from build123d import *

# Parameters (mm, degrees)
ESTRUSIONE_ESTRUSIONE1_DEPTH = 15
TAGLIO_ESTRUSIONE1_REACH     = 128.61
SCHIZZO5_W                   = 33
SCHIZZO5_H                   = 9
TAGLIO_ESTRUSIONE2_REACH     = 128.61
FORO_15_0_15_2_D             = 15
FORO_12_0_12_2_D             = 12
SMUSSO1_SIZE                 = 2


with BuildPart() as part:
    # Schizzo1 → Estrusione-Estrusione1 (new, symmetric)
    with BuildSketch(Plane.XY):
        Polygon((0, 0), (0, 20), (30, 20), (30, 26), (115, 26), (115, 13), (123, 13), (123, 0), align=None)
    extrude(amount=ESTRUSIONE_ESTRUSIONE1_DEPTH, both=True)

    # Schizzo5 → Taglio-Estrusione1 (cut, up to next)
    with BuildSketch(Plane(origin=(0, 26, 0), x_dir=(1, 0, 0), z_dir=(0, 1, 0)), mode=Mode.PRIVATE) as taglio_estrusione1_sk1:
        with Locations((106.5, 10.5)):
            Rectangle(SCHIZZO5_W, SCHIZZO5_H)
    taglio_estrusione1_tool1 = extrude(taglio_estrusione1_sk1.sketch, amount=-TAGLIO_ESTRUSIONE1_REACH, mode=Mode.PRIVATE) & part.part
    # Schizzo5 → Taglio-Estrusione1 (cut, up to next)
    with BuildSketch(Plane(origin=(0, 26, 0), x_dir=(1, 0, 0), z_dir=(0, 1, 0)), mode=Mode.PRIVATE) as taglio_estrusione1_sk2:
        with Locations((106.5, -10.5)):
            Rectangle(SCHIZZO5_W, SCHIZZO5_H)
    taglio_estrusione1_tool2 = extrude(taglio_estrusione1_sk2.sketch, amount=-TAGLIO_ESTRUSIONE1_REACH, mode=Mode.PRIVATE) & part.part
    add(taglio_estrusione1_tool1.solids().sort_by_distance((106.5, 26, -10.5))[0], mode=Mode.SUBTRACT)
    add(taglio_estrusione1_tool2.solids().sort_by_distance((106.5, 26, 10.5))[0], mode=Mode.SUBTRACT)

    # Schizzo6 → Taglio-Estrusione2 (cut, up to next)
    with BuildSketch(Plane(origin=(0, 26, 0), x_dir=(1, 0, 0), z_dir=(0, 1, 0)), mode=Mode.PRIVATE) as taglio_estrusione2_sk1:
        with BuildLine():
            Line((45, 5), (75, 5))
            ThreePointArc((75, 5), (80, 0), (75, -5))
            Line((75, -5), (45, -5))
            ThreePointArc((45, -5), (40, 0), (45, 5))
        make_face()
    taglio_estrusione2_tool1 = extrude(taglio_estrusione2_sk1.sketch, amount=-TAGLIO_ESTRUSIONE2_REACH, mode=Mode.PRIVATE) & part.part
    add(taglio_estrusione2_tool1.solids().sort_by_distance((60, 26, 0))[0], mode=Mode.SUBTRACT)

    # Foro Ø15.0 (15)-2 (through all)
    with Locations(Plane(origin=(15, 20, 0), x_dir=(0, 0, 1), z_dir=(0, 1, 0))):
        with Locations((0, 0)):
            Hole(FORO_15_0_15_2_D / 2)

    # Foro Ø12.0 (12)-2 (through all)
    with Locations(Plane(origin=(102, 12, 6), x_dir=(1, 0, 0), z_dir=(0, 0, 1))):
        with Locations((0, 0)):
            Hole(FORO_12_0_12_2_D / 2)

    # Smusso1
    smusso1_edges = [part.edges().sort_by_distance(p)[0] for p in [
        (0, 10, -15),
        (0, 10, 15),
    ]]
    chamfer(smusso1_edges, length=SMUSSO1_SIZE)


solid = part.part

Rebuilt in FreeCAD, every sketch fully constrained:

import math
import FreeCAD as App
import Part
import Sketcher


def edges_at(feature, points):
    """Names of the edges that pass closest to the given points."""
    edges = feature.Shape.Edges
    near = lambda p: min(range(len(edges)), key=lambda i: edges[i].distToShape(Part.Vertex(*p))[0])
    return sorted({f"Edge{near(p) + 1}" for p in points})


def add_polygon(sketch, points):
    """Adds a closed chain of lines whose ends are joined by coincident constraints."""
    first, n = sketch.GeometryCount, len(points)
    for a, b in zip(points, points[1:] + points[:1]):
        sketch.addGeometry(Part.LineSegment(App.Vector(*a, 0), App.Vector(*b, 0)), False)
    for i in range(n):
        sketch.addConstraint(Sketcher.Constraint("Coincident", first + i, 2, first + (i + 1) % n, 1))

doc = App.newDocument("Part")
params = doc.addObject("Spreadsheet::Sheet", "Params")
for row, (alias, value) in enumerate([
    ("sketch1_width", "123 mm"),
    ("sketch1_width2", "8 mm"),
    ("sketch1_width3", "85 mm"),
    ("sketch1_height", "20 mm"),
    ("sketch1_height2", "13 mm"),
    ("pad1_length", "30 mm"),
    ("sketch2_width", "33 mm"),
    ("sketch2_height", "9 mm"),
    ("sketch3_width", "33 mm"),
    ("sketch3_height", "9 mm"),
    ("sketch4_radius", "5 mm"),
    ("sketch4_width", "30 mm"),
    ("sketch5_diameter", "15 mm"),
    ("hole_diameter", "15 mm"),
    ("sketch6_diameter", "12 mm"),
    ("hole2_diameter", "12 mm"),
    ("chamfer_size", "2 mm"),
], start=1):
    params.set(f"A{row}", alias)
    params.set(f"B{row}", "=" + value)
    params.setAlias(f"B{row}", alias)

body = doc.addObject("PartDesign::Body", "Body")

# Sketch on XY plane
sketch1 = doc.addObject("Sketcher::SketchObject", "Sketch")
body.addObject(sketch1)
sketch1.AttachmentSupport = (doc.XY_Plane, [""])
sketch1.MapMode = "FlatFace"
add_polygon(sketch1, [(0, 20), (0, 0), (123, 0), (123, 13), (115, 13), (115, 26), (30, 26), (30, 20)])  # lines 0-7
sketch1.addConstraint([
    Sketcher.Constraint("Vertical", 0),
    Sketcher.Constraint("Horizontal", 1),
    Sketcher.Constraint("Vertical", 2),
    Sketcher.Constraint("Horizontal", 3),
    Sketcher.Constraint("Vertical", 4),
    Sketcher.Constraint("Horizontal", 5),
    Sketcher.Constraint("Vertical", 6),
    Sketcher.Constraint("Horizontal", 7),
    Sketcher.Constraint("Coincident", 0, 2, -1, 1),
    Sketcher.Constraint("Equal", 2, 4),
    Sketcher.Constraint("DistanceX", 1, 1, 1, 2, 123.0),
    Sketcher.Constraint("DistanceX", 3, 2, 3, 1, 8.0),
    Sketcher.Constraint("DistanceX", 5, 2, 5, 1, 85.0),
    Sketcher.Constraint("DistanceY", 0, 2, 0, 1, 20.0),
    Sketcher.Constraint("DistanceY", 2, 1, 2, 2, 13.0),
])
sketch1.setExpression("Constraints[18]", "Params.sketch1_width")
sketch1.setExpression("Constraints[19]", "Params.sketch1_width2")
sketch1.setExpression("Constraints[20]", "Params.sketch1_width3")
sketch1.setExpression("Constraints[21]", "Params.sketch1_height")
sketch1.setExpression("Constraints[22]", "Params.sketch1_height2")
pad1 = doc.addObject("PartDesign::Pad", "Pad")
body.addObject(pad1)
pad1.Profile = sketch1
pad1.setExpression("Length", "Params.pad1_length")
pad1.Midplane = True

# Sketch on XZ plane
sketch2 = doc.addObject("Sketcher::SketchObject", "Sketch001")
body.addObject(sketch2)
sketch2.AttachmentSupport = (doc.XZ_Plane, [""])
sketch2.MapMode = "FlatFace"
sketch2.AttachmentOffset = App.Placement(App.Vector(0, 0, -26), App.Rotation())
add_polygon(sketch2, [(90, -15), (90, -6), (123, -6), (123, -15)])  # lines 0-3
sketch2.addConstraint([
    Sketcher.Constraint("Vertical", 0),
    Sketcher.Constraint("Horizontal", 1),
    Sketcher.Constraint("Vertical", 2),
    Sketcher.Constraint("Horizontal", 3),
    Sketcher.Constraint("DistanceX", 1, 1, 1, 2, 33.0),
    Sketcher.Constraint("DistanceY", 0, 1, 0, 2, 9.0),
    Sketcher.Constraint("DistanceX", -1, 1, 0, 2, 90.0),
    Sketcher.Constraint("DistanceY", 0, 2, -1, 1, 6.0),
])
sketch2.setExpression("Constraints[8]", "Params.sketch2_width")
sketch2.setExpression("Constraints[9]", "Params.sketch2_height")
pocket1 = doc.addObject("PartDesign::Pocket", "Pocket")
body.addObject(pocket1)
pocket1.Profile = sketch2
pocket1.Type = "UpToFirst"
pocket1.Reversed = True

# Sketch on XZ plane
sketch3 = doc.addObject("Sketcher::SketchObject", "Sketch002")
body.addObject(sketch3)
sketch3.AttachmentSupport = (doc.XZ_Plane, [""])
sketch3.MapMode = "FlatFace"
sketch3.AttachmentOffset = App.Placement(App.Vector(0, 0, -26), App.Rotation())
add_polygon(sketch3, [(90, 6), (90, 15), (123, 15), (123, 6)])  # lines 0-3
sketch3.addConstraint([
    Sketcher.Constraint("Vertical", 0),
    Sketcher.Constraint("Horizontal", 1),
    Sketcher.Constraint("Vertical", 2),
    Sketcher.Constraint("Horizontal", 3),
    Sketcher.Constraint("DistanceX", 1, 1, 1, 2, 33.0),
    Sketcher.Constraint("DistanceY", 0, 1, 0, 2, 9.0),
    Sketcher.Constraint("DistanceX", -1, 1, 0, 2, 90.0),
    Sketcher.Constraint("DistanceY", -1, 1, 0, 2, 15.0),
])
sketch3.setExpression("Constraints[8]", "Params.sketch3_width")
sketch3.setExpression("Constraints[9]", "Params.sketch3_height")
pocket2 = doc.addObject("PartDesign::Pocket", "Pocket001")
body.addObject(pocket2)
pocket2.Profile = sketch3
pocket2.Type = "UpToFirst"
pocket2.Reversed = True

# Sketch on XZ plane
sketch4 = doc.addObject("Sketcher::SketchObject", "Sketch003")
body.addObject(sketch4)
sketch4.AttachmentSupport = (doc.XZ_Plane, [""])
sketch4.MapMode = "FlatFace"
sketch4.AttachmentOffset = App.Placement(App.Vector(0, 0, -26), App.Rotation())
sketch4.addGeometry([
    Part.LineSegment(App.Vector(75, -5, 0), App.Vector(45, -5, 0)),
    Part.ArcOfCircle(Part.Circle(App.Vector(45, 0, 0), App.Vector(0, 0, 1), 5), math.radians(90), math.radians(270)),
    Part.LineSegment(App.Vector(45, 5, 0), App.Vector(75, 5, 0)),
    Part.ArcOfCircle(Part.Circle(App.Vector(75, 0, 0), App.Vector(0, 0, 1), 5), math.radians(-90), math.radians(90)),
], False)
sketch4.addConstraint([
    Sketcher.Constraint("Tangent", 0, 2, 1, 2),
    Sketcher.Constraint("Tangent", 1, 1, 2, 1),
    Sketcher.Constraint("Tangent", 2, 2, 3, 2),
    Sketcher.Constraint("Tangent", 3, 1, 0, 1),
    Sketcher.Constraint("Horizontal", 0),
    Sketcher.Constraint("Horizontal", 2),
    Sketcher.Constraint("PointOnObject", 1, 3, -1),
    Sketcher.Constraint("Radius", 1, 5.0),
    Sketcher.Constraint("DistanceX", 0, 2, 0, 1, 30.0),
    Sketcher.Constraint("DistanceX", -1, 1, 1, 3, 45.0),
])
sketch4.setExpression("Constraints[7]", "Params.sketch4_radius")
sketch4.setExpression("Constraints[8]", "Params.sketch4_width")
pocket3 = doc.addObject("PartDesign::Pocket", "Pocket002")
body.addObject(pocket3)
pocket3.Profile = sketch4
pocket3.Type = "UpToFirst"
pocket3.Reversed = True

# Sketch on XZ plane
sketch5 = doc.addObject("Sketcher::SketchObject", "Sketch004")
body.addObject(sketch5)
sketch5.AttachmentSupport = (doc.XZ_Plane, [""])
sketch5.MapMode = "FlatFace"
sketch5.AttachmentOffset = App.Placement(App.Vector(0, 0, -20), App.Rotation())
sketch5.addGeometry(Part.Circle(App.Vector(15, 0, 0), App.Vector(0, 0, 1), 7.5), False)
sketch5.addConstraint([
    Sketcher.Constraint("PointOnObject", 0, 3, -1),
    Sketcher.Constraint("Diameter", 0, 15.0),
    Sketcher.Constraint("DistanceX", -1, 1, 0, 3, 15.0),
])
sketch5.setExpression("Constraints[1]", "Params.sketch5_diameter")
doc.recompute()
hole = doc.addObject("PartDesign::Hole", "Hole")
body.addObject(hole)
hole.Profile = sketch5
hole.ThreadType = "None"
hole.setExpression("Diameter", "Params.hole_diameter")
hole.DepthType = "ThroughAll"
hole.Reversed = True

# Sketch on XY plane
sketch6 = doc.addObject("Sketcher::SketchObject", "Sketch005")
body.addObject(sketch6)
sketch6.AttachmentSupport = (doc.XY_Plane, [""])
sketch6.MapMode = "FlatFace"
sketch6.AttachmentOffset = App.Placement(App.Vector(0, 0, 6), App.Rotation())
sketch6.addGeometry(Part.Circle(App.Vector(102, 12, 0), App.Vector(0, 0, 1), 6), False)
sketch6.addConstraint([
    Sketcher.Constraint("Diameter", 0, 12.0),
    Sketcher.Constraint("DistanceX", -1, 1, 0, 3, 102.0),
    Sketcher.Constraint("DistanceY", -1, 1, 0, 3, 12.0),
])
sketch6.setExpression("Constraints[0]", "Params.sketch6_diameter")
doc.recompute()
hole2 = doc.addObject("PartDesign::Hole", "Hole001")
body.addObject(hole2)
hole2.Profile = sketch6
hole2.ThreadType = "None"
hole2.setExpression("Diameter", "Params.hole2_diameter")
hole2.DepthType = "ThroughAll"
doc.recompute()

chamfer = doc.addObject("PartDesign::Chamfer", "Chamfer")
body.addObject(chamfer)
chamfer.Base = (hole2, edges_at(hole2, [(0, 10, -15), (0, 10, 15)]))
chamfer.setExpression("Size", "Params.chamfer_size")

doc.recompute()
